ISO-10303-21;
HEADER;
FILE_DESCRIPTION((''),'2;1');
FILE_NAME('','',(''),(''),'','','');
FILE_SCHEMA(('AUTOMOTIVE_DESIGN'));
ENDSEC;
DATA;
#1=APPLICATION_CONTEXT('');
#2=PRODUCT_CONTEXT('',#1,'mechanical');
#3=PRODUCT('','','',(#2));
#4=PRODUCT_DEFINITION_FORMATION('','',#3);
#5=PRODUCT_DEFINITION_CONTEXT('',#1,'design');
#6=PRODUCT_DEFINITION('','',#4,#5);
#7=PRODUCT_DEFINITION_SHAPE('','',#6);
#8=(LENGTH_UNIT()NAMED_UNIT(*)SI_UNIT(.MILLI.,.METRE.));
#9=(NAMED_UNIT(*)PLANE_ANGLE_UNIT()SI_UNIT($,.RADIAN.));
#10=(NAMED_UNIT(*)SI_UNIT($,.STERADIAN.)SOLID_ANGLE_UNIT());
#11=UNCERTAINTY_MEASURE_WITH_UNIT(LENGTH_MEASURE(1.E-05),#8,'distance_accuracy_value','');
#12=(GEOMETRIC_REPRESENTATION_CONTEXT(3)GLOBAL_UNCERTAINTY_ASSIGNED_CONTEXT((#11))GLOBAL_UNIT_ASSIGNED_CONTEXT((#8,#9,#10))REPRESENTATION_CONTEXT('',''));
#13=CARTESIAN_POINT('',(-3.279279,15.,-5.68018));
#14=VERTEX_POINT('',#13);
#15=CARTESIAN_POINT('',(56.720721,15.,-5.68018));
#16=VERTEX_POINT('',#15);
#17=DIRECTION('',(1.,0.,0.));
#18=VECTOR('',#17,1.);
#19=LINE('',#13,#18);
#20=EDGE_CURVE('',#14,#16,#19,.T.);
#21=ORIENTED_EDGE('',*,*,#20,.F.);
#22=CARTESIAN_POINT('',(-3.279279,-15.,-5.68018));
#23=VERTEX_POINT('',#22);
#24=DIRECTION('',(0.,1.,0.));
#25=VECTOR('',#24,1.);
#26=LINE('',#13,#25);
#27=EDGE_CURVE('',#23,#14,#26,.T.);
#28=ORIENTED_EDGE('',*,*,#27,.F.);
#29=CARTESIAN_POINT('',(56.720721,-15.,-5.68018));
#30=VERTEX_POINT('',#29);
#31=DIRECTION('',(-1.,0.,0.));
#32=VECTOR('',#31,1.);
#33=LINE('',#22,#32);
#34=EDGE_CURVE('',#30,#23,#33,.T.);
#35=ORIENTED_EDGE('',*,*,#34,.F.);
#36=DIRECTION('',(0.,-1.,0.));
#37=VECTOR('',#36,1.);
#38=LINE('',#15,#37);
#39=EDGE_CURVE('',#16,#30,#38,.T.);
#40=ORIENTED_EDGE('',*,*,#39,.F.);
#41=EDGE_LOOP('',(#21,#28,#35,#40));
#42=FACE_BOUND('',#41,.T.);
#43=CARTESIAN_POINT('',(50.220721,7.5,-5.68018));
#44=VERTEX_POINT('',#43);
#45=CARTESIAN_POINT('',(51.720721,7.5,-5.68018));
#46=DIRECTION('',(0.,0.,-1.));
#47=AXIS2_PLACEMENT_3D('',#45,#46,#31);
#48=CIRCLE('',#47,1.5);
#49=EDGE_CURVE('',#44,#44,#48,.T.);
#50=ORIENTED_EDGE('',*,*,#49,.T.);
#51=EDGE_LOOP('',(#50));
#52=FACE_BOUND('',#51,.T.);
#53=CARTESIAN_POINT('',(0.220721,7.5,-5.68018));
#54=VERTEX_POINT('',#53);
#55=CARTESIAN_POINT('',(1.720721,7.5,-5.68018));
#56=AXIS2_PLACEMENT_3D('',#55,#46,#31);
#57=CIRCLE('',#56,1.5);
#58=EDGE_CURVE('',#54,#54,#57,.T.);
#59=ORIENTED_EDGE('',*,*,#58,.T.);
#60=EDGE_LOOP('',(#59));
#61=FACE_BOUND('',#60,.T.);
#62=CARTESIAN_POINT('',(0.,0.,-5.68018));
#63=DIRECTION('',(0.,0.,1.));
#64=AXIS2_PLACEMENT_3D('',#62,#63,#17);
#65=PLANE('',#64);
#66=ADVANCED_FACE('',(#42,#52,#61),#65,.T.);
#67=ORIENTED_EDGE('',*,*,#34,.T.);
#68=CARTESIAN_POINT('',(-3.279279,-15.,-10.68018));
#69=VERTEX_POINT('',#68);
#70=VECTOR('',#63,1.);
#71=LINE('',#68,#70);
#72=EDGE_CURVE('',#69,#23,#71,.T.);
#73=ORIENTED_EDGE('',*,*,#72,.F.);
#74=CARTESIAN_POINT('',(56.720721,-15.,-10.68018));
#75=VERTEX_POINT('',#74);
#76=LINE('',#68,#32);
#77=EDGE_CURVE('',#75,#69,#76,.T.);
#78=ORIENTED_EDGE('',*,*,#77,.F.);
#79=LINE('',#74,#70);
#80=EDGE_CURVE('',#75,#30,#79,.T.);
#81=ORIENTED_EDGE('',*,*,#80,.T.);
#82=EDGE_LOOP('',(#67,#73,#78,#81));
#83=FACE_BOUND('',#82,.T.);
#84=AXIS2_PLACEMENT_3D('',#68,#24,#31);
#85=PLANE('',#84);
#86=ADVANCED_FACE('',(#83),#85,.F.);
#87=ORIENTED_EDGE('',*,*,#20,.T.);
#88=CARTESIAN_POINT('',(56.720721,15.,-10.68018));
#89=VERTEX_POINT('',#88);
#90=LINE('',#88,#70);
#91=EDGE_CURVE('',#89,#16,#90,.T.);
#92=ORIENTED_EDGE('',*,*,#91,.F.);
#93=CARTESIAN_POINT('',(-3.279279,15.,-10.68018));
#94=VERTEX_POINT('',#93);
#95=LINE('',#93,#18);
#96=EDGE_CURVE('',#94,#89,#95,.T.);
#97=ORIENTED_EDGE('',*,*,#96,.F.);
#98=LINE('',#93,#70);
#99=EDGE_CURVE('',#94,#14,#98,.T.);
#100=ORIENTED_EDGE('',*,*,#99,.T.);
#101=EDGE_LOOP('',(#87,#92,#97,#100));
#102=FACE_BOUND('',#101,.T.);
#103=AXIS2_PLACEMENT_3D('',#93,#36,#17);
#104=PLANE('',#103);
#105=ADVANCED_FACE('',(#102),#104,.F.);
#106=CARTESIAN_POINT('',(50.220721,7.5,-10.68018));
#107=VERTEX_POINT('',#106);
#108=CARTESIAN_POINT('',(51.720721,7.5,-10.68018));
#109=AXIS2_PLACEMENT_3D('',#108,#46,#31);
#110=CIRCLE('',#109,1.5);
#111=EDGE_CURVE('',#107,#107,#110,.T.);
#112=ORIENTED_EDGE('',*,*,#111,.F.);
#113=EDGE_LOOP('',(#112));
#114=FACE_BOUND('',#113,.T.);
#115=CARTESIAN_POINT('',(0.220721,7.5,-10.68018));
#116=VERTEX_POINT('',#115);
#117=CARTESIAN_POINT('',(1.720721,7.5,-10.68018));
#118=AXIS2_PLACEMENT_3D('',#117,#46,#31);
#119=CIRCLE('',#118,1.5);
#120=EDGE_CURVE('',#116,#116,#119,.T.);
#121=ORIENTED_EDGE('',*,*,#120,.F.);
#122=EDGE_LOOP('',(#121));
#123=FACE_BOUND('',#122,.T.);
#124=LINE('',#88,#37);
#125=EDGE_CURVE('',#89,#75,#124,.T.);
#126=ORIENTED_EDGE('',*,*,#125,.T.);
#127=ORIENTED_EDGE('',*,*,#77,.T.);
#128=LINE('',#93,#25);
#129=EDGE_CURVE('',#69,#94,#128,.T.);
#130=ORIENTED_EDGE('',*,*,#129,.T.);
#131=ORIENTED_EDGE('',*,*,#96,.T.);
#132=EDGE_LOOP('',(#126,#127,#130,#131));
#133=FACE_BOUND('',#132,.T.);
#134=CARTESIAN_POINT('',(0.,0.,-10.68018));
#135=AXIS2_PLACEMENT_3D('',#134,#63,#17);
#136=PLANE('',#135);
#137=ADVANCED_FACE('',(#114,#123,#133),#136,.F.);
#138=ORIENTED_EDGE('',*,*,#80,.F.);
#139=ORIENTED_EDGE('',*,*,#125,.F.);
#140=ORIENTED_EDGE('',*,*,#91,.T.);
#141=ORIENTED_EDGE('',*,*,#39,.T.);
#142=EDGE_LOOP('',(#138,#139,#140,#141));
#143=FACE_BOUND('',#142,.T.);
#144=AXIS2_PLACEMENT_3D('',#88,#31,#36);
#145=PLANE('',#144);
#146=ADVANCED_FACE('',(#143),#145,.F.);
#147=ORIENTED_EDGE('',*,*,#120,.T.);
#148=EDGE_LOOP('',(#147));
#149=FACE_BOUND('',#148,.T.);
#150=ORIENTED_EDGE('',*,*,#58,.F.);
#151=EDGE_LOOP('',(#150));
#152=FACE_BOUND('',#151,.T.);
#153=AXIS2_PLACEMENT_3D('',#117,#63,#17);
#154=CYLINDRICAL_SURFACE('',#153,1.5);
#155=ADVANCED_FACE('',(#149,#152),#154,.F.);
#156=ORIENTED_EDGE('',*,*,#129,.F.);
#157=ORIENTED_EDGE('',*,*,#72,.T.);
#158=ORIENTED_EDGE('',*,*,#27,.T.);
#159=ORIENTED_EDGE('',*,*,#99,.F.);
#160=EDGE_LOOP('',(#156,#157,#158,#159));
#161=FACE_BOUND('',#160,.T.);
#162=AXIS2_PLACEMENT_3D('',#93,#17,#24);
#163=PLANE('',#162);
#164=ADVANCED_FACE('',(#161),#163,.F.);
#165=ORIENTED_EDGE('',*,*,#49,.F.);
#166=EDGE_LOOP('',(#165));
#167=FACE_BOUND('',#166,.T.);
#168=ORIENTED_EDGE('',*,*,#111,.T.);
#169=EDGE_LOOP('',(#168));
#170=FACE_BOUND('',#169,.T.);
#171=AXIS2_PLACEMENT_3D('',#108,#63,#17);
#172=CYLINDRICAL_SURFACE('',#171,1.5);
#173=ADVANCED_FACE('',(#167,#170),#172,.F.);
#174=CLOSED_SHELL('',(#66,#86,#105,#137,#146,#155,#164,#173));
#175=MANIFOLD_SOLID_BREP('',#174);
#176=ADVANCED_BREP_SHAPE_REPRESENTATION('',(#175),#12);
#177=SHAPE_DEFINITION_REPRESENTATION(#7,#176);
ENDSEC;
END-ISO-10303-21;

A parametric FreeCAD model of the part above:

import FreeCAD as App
import Part
import Sketcher
Q = App.Units.Quantity

doc = App.newDocument("Part")
body = doc.addObject("PartDesign::Body", "Body")

# Sketch on XY plane
sketch1 = body.newObject("Sketcher::SketchObject", "Sketch")
sketch1.AttachmentSupport = (doc.getObject("XY_Plane"), [""])
sketch1.MapMode = "FlatFace"
sketch1.AttachmentOffset = App.Placement(App.Vector(0, 0, -5.68018), App.Rotation())
sketch1.addGeometry([
    Part.LineSegment(App.Vector(56.7, 15, 0), App.Vector(56.7, -15, 0)),  # 0
    Part.LineSegment(App.Vector(56.7, -15, 0), App.Vector(-3.3, -15, 0)),  # 1
    Part.LineSegment(App.Vector(-3.3, -15, 0), App.Vector(-3.3, 15, 0)),  # 2
    Part.LineSegment(App.Vector(-3.3, 15, 0), App.Vector(56.7, 15, 0)),  # 3
    Part.Circle(App.Vector(51.7, 7.5, 0), App.Vector(0, 0, 1), 1.5),  # 4
    Part.Circle(App.Vector(1.7, 7.5, 0), App.Vector(0, 0, 1), 1.5),  # 5
], False)
sketch1.addConstraint([
    Sketcher.Constraint("Coincident", 0, 2, 1, 1),
    Sketcher.Constraint("Coincident", 1, 2, 2, 1),
    Sketcher.Constraint("Coincident", 2, 2, 3, 1),
    Sketcher.Constraint("Coincident", 3, 2, 0, 1),
    Sketcher.Constraint("Vertical", 0),
    Sketcher.Constraint("Horizontal", 1),
    Sketcher.Constraint("Vertical", 2),
    Sketcher.Constraint("Horizontal", 3),
    Sketcher.Constraint("Equal", 4, 5),
    Sketcher.Constraint("Horizontal", 4, 3, 5, 3),
    Sketcher.Constraint("Diameter", 4, Q("3 mm")),
    Sketcher.Constraint("DistanceX", 1, 2, 1, 1, Q("60 mm")),
    Sketcher.Constraint("DistanceY", 0, 2, 0, 1, Q("30 mm")),
    Sketcher.Constraint("DistanceY", 0, 2, -1, 1, Q("15 mm")),
    Sketcher.Constraint("DistanceX", 5, 3, 4, 3, Q("50 mm")),
    Sketcher.Constraint("DistanceX", 4, 3, 0, 2, Q("5 mm")),
    Sketcher.Constraint("DistanceY", -1, 1, 4, 3, Q("7.5 mm")),
    Sketcher.Constraint("DistanceX", -1, 1, 4, 3, Q("51.720721 mm")),
])
pad1 = body.newObject("PartDesign::Pad", "Pad")
pad1.Profile = sketch1
pad1.Length = 5
pad1.Reversed = True

doc.recompute()
